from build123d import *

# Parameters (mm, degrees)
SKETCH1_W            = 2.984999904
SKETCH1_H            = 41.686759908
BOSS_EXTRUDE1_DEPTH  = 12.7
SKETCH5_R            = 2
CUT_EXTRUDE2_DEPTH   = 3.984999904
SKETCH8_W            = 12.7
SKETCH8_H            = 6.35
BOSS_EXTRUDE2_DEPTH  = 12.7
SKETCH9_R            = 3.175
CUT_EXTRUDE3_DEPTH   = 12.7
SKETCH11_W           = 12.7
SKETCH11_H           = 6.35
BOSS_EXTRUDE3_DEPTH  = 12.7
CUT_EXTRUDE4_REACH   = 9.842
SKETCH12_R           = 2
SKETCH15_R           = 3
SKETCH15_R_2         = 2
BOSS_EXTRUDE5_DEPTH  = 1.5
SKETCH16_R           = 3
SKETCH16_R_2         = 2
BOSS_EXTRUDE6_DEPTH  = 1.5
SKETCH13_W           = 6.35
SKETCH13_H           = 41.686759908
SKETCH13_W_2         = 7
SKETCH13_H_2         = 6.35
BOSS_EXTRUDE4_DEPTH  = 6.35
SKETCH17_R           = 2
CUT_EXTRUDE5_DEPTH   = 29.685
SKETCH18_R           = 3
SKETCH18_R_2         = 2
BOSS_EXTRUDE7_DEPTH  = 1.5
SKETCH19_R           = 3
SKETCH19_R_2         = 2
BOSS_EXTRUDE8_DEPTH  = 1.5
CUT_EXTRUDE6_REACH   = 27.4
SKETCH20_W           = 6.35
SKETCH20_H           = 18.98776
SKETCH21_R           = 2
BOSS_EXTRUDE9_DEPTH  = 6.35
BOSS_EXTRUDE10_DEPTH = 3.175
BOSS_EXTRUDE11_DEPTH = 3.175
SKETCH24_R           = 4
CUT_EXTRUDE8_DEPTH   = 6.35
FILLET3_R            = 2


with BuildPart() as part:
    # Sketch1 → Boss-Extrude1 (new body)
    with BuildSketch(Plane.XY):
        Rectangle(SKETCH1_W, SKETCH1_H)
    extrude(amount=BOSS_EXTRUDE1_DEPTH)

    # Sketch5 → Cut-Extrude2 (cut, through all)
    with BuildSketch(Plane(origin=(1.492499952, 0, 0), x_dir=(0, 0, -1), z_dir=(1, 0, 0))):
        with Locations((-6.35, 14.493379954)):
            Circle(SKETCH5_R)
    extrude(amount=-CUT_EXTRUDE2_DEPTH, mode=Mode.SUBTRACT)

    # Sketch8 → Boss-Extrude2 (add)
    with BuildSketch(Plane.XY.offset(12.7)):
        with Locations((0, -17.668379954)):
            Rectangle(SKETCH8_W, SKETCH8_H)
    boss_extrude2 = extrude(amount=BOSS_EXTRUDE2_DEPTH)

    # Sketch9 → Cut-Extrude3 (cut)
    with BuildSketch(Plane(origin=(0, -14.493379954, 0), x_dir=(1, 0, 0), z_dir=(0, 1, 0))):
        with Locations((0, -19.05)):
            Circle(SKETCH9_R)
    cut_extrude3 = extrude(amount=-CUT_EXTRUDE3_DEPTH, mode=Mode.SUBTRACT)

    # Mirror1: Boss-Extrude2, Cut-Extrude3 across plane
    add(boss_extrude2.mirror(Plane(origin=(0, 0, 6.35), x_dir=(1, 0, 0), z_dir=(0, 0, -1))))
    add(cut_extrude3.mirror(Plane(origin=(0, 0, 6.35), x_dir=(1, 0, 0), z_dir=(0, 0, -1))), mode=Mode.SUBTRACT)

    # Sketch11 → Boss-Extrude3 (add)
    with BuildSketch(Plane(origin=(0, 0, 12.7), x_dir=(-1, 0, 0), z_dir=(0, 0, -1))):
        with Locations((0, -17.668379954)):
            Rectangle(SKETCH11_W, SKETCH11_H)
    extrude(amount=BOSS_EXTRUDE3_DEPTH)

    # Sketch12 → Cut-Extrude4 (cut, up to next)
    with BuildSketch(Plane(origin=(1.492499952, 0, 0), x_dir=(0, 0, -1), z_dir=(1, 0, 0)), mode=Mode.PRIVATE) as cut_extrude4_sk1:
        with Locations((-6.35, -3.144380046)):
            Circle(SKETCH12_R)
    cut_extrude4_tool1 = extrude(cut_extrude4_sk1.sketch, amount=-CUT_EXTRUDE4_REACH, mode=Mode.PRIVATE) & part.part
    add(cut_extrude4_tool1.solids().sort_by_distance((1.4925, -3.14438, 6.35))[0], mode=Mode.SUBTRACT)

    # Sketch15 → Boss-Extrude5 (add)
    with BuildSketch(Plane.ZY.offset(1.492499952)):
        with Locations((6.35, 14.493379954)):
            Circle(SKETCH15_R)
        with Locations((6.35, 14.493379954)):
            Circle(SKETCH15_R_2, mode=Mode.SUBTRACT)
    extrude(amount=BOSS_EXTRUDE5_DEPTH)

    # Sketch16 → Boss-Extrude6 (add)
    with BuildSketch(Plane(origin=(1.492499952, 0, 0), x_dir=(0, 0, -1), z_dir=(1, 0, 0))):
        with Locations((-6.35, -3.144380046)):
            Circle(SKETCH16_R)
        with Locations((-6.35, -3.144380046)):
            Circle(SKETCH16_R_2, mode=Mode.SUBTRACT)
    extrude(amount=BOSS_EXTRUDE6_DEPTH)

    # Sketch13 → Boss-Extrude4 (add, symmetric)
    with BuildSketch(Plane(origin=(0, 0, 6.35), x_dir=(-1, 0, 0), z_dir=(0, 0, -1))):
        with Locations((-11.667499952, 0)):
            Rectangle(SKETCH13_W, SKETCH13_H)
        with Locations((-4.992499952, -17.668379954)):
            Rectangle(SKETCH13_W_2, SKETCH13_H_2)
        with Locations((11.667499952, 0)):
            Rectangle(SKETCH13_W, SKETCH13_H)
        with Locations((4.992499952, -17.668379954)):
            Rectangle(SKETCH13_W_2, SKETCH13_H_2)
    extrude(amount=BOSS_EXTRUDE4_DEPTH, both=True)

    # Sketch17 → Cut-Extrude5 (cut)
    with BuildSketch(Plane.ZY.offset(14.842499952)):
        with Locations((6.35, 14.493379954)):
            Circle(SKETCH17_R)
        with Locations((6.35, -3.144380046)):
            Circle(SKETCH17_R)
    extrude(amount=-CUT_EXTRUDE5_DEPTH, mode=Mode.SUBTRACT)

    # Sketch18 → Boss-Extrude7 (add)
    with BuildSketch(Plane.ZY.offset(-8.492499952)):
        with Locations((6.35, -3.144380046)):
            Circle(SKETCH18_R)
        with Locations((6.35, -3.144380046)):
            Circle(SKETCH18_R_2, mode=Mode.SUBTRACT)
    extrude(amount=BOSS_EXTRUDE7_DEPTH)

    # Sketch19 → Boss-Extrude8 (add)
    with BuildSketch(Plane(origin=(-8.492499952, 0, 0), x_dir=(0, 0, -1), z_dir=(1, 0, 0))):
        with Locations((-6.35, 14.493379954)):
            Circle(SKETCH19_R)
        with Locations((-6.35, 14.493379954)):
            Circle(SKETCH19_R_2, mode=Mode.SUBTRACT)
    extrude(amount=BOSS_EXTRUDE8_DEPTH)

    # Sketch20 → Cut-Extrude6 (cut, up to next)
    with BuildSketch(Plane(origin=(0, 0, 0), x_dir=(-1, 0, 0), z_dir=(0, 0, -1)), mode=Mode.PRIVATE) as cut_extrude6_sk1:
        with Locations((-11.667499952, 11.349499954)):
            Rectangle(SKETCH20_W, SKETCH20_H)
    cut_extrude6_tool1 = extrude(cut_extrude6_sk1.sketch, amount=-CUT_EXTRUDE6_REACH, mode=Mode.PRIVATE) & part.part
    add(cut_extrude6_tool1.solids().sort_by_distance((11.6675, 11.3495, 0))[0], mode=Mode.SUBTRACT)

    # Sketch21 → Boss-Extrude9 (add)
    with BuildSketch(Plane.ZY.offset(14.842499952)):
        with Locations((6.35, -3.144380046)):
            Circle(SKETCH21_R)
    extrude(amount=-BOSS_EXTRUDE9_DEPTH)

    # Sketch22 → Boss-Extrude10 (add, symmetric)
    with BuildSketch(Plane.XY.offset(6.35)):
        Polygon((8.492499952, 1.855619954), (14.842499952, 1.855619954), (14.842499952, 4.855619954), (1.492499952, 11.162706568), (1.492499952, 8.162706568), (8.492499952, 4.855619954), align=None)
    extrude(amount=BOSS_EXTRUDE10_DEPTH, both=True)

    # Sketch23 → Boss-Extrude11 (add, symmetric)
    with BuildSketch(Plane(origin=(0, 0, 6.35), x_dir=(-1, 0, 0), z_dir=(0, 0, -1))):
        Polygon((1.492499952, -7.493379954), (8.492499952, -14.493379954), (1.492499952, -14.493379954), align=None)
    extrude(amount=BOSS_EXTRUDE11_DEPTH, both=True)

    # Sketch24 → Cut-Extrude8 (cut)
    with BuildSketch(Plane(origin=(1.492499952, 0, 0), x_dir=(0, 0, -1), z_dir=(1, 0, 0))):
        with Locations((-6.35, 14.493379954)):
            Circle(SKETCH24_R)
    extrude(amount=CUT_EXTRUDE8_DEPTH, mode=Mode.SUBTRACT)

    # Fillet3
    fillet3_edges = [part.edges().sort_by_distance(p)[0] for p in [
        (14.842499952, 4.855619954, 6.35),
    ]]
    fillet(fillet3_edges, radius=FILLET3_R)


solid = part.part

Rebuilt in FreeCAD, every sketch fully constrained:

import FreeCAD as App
import Part
import Sketcher
Q = App.Units.Quantity


def edges_at(feature, points):
    """Names of the edges that pass closest to the given points."""
    edges = feature.Shape.Edges
    near = lambda p: min(range(len(edges)), key=lambda i: edges[i].distToShape(Part.Vertex(*p))[0])
    return sorted({f"Edge{near(p) + 1}" for p in points})


def add_polygon(sketch, points):
    """Adds a closed chain of lines whose ends are joined by coincident constraints."""
    first, n = sketch.GeometryCount, len(points)
    for a, b in zip(points, points[1:] + points[:1]):
        sketch.addGeometry(Part.LineSegment(App.Vector(*a, 0), App.Vector(*b, 0)), False)
    for i in range(n):
        sketch.addConstraint(Sketcher.Constraint("Coincident", first + i, 2, first + (i + 1) % n, 1))

doc = App.newDocument("Part")
body = doc.addObject("PartDesign::Body", "Body")

sketch1 = doc.addObject("Sketcher::SketchObject", "Sketch")
body.addObject(sketch1)
sketch1.AttachmentSupport = (doc.XY_Plane, [""])
sketch1.MapMode = "FlatFace"
add_polygon(sketch1, [(-1.5, 20.8), (-1.5, -20.8), (1.5, -20.8), (1.5, 20.8)])
sketch1.addConstraint(Sketcher.Constraint("Vertical", 0))
sketch1.addConstraint(Sketcher.Constraint("Horizontal", 1))
sketch1.addConstraint(Sketcher.Constraint("Vertical", 2))
sketch1.addConstraint(Sketcher.Constraint("Horizontal", 3))
sketch1.addConstraint(Sketcher.Constraint("Symmetric", 0, 2, 2, 2, -1, 1))
sketch1.addConstraint(Sketcher.Constraint("DistanceX", 1, 1, 1, 2, Q("2.985 mm")))
sketch1.addConstraint(Sketcher.Constraint("DistanceY", 0, 2, 0, 1, Q("41.68676 mm")))
pad1 = doc.addObject("PartDesign::Pad", "Pad")
body.addObject(pad1)
pad1.Profile = sketch1
pad1.Length = 12.7

sketch2 = doc.addObject("Sketcher::SketchObject", "Sketch001")
body.addObject(sketch2)
sketch2.AttachmentSupport = (doc.YZ_Plane, [""])
sketch2.MapMode = "FlatFace"
sketch2.AttachmentOffset = App.Placement(App.Vector(0, 0, 1.4925), App.Rotation())
sketch2.addGeometry(Part.Circle(App.Vector(14.5, 6.3, 0), App.Vector(0, 0, 1), 2), False)
sketch2.addConstraint(Sketcher.Constraint("Diameter", 0, Q("4 mm")))
sketch2.addConstraint(Sketcher.Constraint("DistanceY", -1, 1, 0, 3, Q("6.35 mm")))
sketch2.addConstraint(Sketcher.Constraint("DistanceX", -1, 1, 0, 3, Q("14.49338 mm")))
pocket1 = doc.addObject("PartDesign::Pocket", "Pocket")
body.addObject(pocket1)
pocket1.Profile = sketch2
pocket1.Type = "ThroughAll"

sketch3 = doc.addObject("Sketcher::SketchObject", "Sketch002")
body.addObject(sketch3)
sketch3.AttachmentSupport = (doc.XY_Plane, [""])
sketch3.MapMode = "FlatFace"
sketch3.AttachmentOffset = App.Placement(App.Vector(0, 0, 12.7), App.Rotation())
add_polygon(sketch3, [(-6, -14), (-6, -21), (6, -21), (6, -14)])
sketch3.addConstraint(Sketcher.Constraint("Vertical", 0))
sketch3.addConstraint(Sketcher.Constraint("Horizontal", 1))
sketch3.addConstraint(Sketcher.Constraint("Vertical", 2))
sketch3.addConstraint(Sketcher.Constraint("Horizontal", 3))
sketch3.addConstraint(Sketcher.Constraint("DistanceX", 1, 1, 1, 2, Q("12.7 mm")))
sketch3.addConstraint(Sketcher.Constraint("DistanceY", 0, 2, 0, 1, Q("6.35 mm")))
sketch3.addConstraint(Sketcher.Constraint("DistanceX", 0, 2, -1, 1, Q("6.35 mm")))
sketch3.addConstraint(Sketcher.Constraint("DistanceY", 0, 2, -1, 1, Q("20.84338 mm")))
pad2 = doc.addObject("PartDesign::Pad", "Pad001")
body.addObject(pad2)
pad2.Profile = sketch3
pad2.Length = 12.7

sketch4 = doc.addObject("Sketcher::SketchObject", "Sketch003")
body.addObject(sketch4)
sketch4.AttachmentSupport = (doc.XZ_Plane, [""])
sketch4.MapMode = "FlatFace"
sketch4.AttachmentOffset = App.Placement(App.Vector(0, 0, 14.49338), App.Rotation())
sketch4.addGeometry(Part.Circle(App.Vector(0, 19.1, 0), App.Vector(0, 0, 1), 3.2), False)
sketch4.addConstraint(Sketcher.Constraint("PointOnObject", 0, 3, -2))
sketch4.addConstraint(Sketcher.Constraint("Diameter", 0, Q("6.35 mm")))
sketch4.addConstraint(Sketcher.Constraint("DistanceY", -1, 1, 0, 3, Q("19.05 mm")))
pocket2 = doc.addObject("PartDesign::Pocket", "Pocket001")
body.addObject(pocket2)
pocket2.Profile = sketch4
pocket2.Length = 12.7
pocket2.Reversed = True
doc.recompute()

datumplane = doc.addObject("PartDesign::Plane", "DatumPlane")
body.addObject(datumplane)
datumplane.AttachmentSupport = (doc.XY_Plane, [""])
datumplane.MapMode = "FlatFace"
datumplane.AttachmentOffset = App.Placement(App.Vector(0, 0, 6.35), App.Rotation())
mirrored = doc.addObject("PartDesign::Mirrored", "Mirrored")
body.addObject(mirrored)
mirrored.Originals = [pad2, pocket2]
mirrored.MirrorPlane = (datumplane, [""])
body.Tip = mirrored

sketch5 = doc.addObject("Sketcher::SketchObject", "Sketch004")
body.addObject(sketch5)
sketch5.AttachmentSupport = (doc.XY_Plane, [""])
sketch5.MapMode = "FlatFace"
sketch5.AttachmentOffset = App.Placement(App.Vector(0, 0, 12.7), App.Rotation())
add_polygon(sketch5, [(6, -14), (6, -21), (-6, -21), (-6, -14)])
sketch5.addConstraint(Sketcher.Constraint("Vertical", 0))
sketch5.addConstraint(Sketcher.Constraint("Horizontal", 1))
sketch5.addConstraint(Sketcher.Constraint("Vertical", 2))
sketch5.addConstraint(Sketcher.Constraint("Horizontal", 3))
sketch5.addConstraint(Sketcher.Constraint("DistanceX", 1, 2, 1, 1, Q("12.7 mm")))
sketch5.addConstraint(Sketcher.Constraint("DistanceY", 0, 2, 0, 1, Q("6.35 mm")))
sketch5.addConstraint(Sketcher.Constraint("DistanceX", -1, 1, 0, 2, Q("6.35 mm")))
sketch5.addConstraint(Sketcher.Constraint("DistanceY", 0, 2, -1, 1, Q("20.84338 mm")))
pad3 = doc.addObject("PartDesign::Pad", "Pad002")
body.addObject(pad3)
pad3.Profile = sketch5
pad3.Length = 12.7
pad3.Reversed = True

sketch6 = doc.addObject("Sketcher::SketchObject", "Sketch005")
body.addObject(sketch6)
sketch6.AttachmentSupport = (doc.YZ_Plane, [""])
sketch6.MapMode = "FlatFace"
sketch6.AttachmentOffset = App.Placement(App.Vector(0, 0, 1.4925), App.Rotation())
sketch6.addGeometry(Part.Circle(App.Vector(-3.1, 6.3, 0), App.Vector(0, 0, 1), 2), False)
sketch6.addConstraint(Sketcher.Constraint("Diameter", 0, Q("4 mm")))
sketch6.addConstraint(Sketcher.Constraint("DistanceY", -1, 1, 0, 3, Q("6.35 mm")))
sketch6.addConstraint(Sketcher.Constraint("DistanceX", 0, 3, -1, 1, Q("3.14438 mm")))
pocket3 = doc.addObject("PartDesign::Pocket", "Pocket002")
body.addObject(pocket3)
pocket3.Profile = sketch6
pocket3.Type = "UpToFirst"

sketch7 = doc.addObject("Sketcher::SketchObject", "Sketch006")
body.addObject(sketch7)
sketch7.AttachmentSupport = (doc.YZ_Plane, [""])
sketch7.MapMode = "FlatFace"
sketch7.AttachmentOffset = App.Placement(App.Vector(0, 0, -1.4925), App.Rotation())
sketch7.addGeometry(Part.Circle(App.Vector(14.5, 6.3, 0), App.Vector(0, 0, 1), 3), False)
sketch7.addGeometry(Part.Circle(App.Vector(14.5, 6.3, 0), App.Vector(0, 0, 1), 2), False)
sketch7.addConstraint(Sketcher.Constraint("Coincident", 1, 3, 0, 3))
sketch7.addConstraint(Sketcher.Constraint("Diameter", 0, Q("6 mm")))
sketch7.addConstraint(Sketcher.Constraint("Diameter", 1, Q("4 mm")))
sketch7.addConstraint(Sketcher.Constraint("DistanceY", -1, 1, 0, 3, Q("6.35 mm")))
sketch7.addConstraint(Sketcher.Constraint("DistanceX", -1, 1, 0, 3, Q("14.49338 mm")))
pad4 = doc.addObject("PartDesign::Pad", "Pad003")
body.addObject(pad4)
pad4.Profile = sketch7
pad4.Length = 1.5
pad4.Reversed = True

sketch8 = doc.addObject("Sketcher::SketchObject", "Sketch007")
body.addObject(sketch8)
sketch8.AttachmentSupport = (doc.YZ_Plane, [""])
sketch8.MapMode = "FlatFace"
sketch8.AttachmentOffset = App.Placement(App.Vector(0, 0, 1.4925), App.Rotation())
sketch8.addGeometry(Part.Circle(App.Vector(-3.1, 6.3, 0), App.Vector(0, 0, 1), 3), False)
sketch8.addGeometry(Part.Circle(App.Vector(-3.1, 6.3, 0), App.Vector(0, 0, 1), 2), False)
sketch8.addConstraint(Sketcher.Constraint("Coincident", 1, 3, 0, 3))
sketch8.addConstraint(Sketcher.Constraint("Diameter", 0, Q("6 mm")))
sketch8.addConstraint(Sketcher.Constraint("Diameter", 1, Q("4 mm")))
sketch8.addConstraint(Sketcher.Constraint("DistanceY", -1, 1, 0, 3, Q("6.35 mm")))
sketch8.addConstraint(Sketcher.Constraint("DistanceX", 0, 3, -1, 1, Q("3.14438 mm")))
pad5 = doc.addObject("PartDesign::Pad", "Pad004")
body.addObject(pad5)
pad5.Profile = sketch8
pad5.Length = 1.5

sketch9 = doc.addObject("Sketcher::SketchObject", "Sketch008")
body.addObject(sketch9)
sketch9.AttachmentSupport = (doc.XY_Plane, [""])
sketch9.MapMode = "FlatFace"
sketch9.AttachmentOffset = App.Placement(App.Vector(0, 0, 6.35), App.Rotation())
add_polygon(sketch9, [(15, 21), (15, -21), (1, -21), (1, -14), (8, -14), (8, 21)])
add_polygon(sketch9, [(-8, 21), (-8, -14), (-1, -14), (-1, -21), (-15, -21), (-15, 21)])
sketch9.addConstraint(Sketcher.Constraint("Vertical", 0))
sketch9.addConstraint(Sketcher.Constraint("Horizontal", 1))
sketch9.addConstraint(Sketcher.Constraint("Vertical", 2))
sketch9.addConstraint(Sketcher.Constraint("Horizontal", 3))
sketch9.addConstraint(Sketcher.Constraint("Vertical", 4))
sketch9.addConstraint(Sketcher.Constraint("Horizontal", 5))
sketch9.addConstraint(Sketcher.Constraint("Vertical", 6))
sketch9.addConstraint(Sketcher.Constraint("Horizontal", 7))
sketch9.addConstraint(Sketcher.Constraint("Vertical", 8))
sketch9.addConstraint(Sketcher.Constraint("Horizontal", 9))
sketch9.addConstraint(Sketcher.Constraint("Vertical", 10))
sketch9.addConstraint(Sketcher.Constraint("Horizontal", 11))
sketch9.addConstraint(Sketcher.Constraint("Symmetric", 5, 2, 9, 2, -1, 1))
sketch9.addConstraint(Sketcher.Constraint("Symmetric", 3, 2, 6, 2, -2))
sketch9.addConstraint(Sketcher.Constraint("Symmetric", 1, 2, 8, 2, -2))
sketch9.addConstraint(Sketcher.Constraint("Horizontal", 5, 2, 10, 2))
sketch9.addConstraint(Sketcher.Constraint("Equal", 11, 2))
sketch9.addConstraint(Sketcher.Constraint("DistanceX", 3, 1, 3, 2, Q("7 mm")))
sketch9.addConstraint(Sketcher.Constraint("DistanceX", 1, 2, 1, 1, Q("13.35 mm")))
sketch9.addConstraint(Sketcher.Constraint("DistanceX", 6, 2, 2, 2, Q("9.985 mm")))
sketch9.addConstraint(Sketcher.Constraint("DistanceY", 0, 2, 0, 1, Q("41.68676 mm")))
pad6 = doc.addObject("PartDesign::Pad", "Pad005")
body.addObject(pad6)
pad6.Profile = sketch9
pad6.Length = 12.7
pad6.Midplane = True

sketch10 = doc.addObject("Sketcher::SketchObject", "Sketch009")
body.addObject(sketch10)
sketch10.AttachmentSupport = (doc.YZ_Plane, [""])
sketch10.MapMode = "FlatFace"
sketch10.AttachmentOffset = App.Placement(App.Vector(0, 0, -14.8425), App.Rotation())
sketch10.addGeometry(Part.Circle(App.Vector(14.5, 6.3, 0), App.Vector(0, 0, 1), 2), False)
sketch10.addGeometry(Part.Circle(App.Vector(-3.1, 6.3, 0), App.Vector(0, 0, 1), 2), False)
sketch10.addConstraint(Sketcher.Constraint("Equal", 0, 1))
sketch10.addConstraint(Sketcher.Constraint("Horizontal", 0, 3, 1, 3))
sketch10.addConstraint(Sketcher.Constraint("Diameter", 0, Q("4 mm")))
sketch10.addConstraint(Sketcher.Constraint("DistanceY", -1, 1, 0, 3, Q("6.35 mm")))
sketch10.addConstraint(Sketcher.Constraint("DistanceX", -1, 1, 0, 3, Q("14.49338 mm")))
sketch10.addConstraint(Sketcher.Constraint("DistanceX", 1, 3, -1, 1, Q("3.14438 mm")))
pocket4 = doc.addObject("PartDesign::Pocket", "Pocket003")
body.addObject(pocket4)
pocket4.Profile = sketch10
pocket4.Length = 29.685
pocket4.Reversed = True

sketch11 = doc.addObject("Sketcher::SketchObject", "Sketch010")
body.addObject(sketch11)
sketch11.AttachmentSupport = (doc.YZ_Plane, [""])
sketch11.MapMode = "FlatFace"
sketch11.AttachmentOffset = App.Placement(App.Vector(0, 0, 8.4925), App.Rotation())
sketch11.addGeometry(Part.Circle(App.Vector(-3.1, 6.3, 0), App.Vector(0, 0, 1), 3), False)
sketch11.addGeometry(Part.Circle(App.Vector(-3.1, 6.3, 0), App.Vector(0, 0, 1), 2), False)
sketch11.addConstraint(Sketcher.Constraint("Coincident", 1, 3, 0, 3))
sketch11.addConstraint(Sketcher.Constraint("Diameter", 0, Q("6 mm")))
sketch11.addConstraint(Sketcher.Constraint("Diameter", 1, Q("4 mm")))
sketch11.addConstraint(Sketcher.Constraint("DistanceY", -1, 1, 0, 3, Q("6.35 mm")))
sketch11.addConstraint(Sketcher.Constraint("DistanceX", 0, 3, -1, 1, Q("3.14438 mm")))
pad7 = doc.addObject("PartDesign::Pad", "Pad006")
body.addObject(pad7)
pad7.Profile = sketch11
pad7.Length = 1.5
pad7.Reversed = True

sketch12 = doc.addObject("Sketcher::SketchObject", "Sketch011")
body.addObject(sketch12)
sketch12.AttachmentSupport = (doc.YZ_Plane, [""])
sketch12.MapMode = "FlatFace"
sketch12.AttachmentOffset = App.Placement(App.Vector(0, 0, -8.4925), App.Rotation())
sketch12.addGeometry(Part.Circle(App.Vector(14.5, 6.3, 0), App.Vector(0, 0, 1), 3), False)
sketch12.addGeometry(Part.Circle(App.Vector(14.5, 6.3, 0), App.Vector(0, 0, 1), 2), False)
sketch12.addConstraint(Sketcher.Constraint("Coincident", 1, 3, 0, 3))
sketch12.addConstraint(Sketcher.Constraint("Diameter", 0, Q("6 mm")))
sketch12.addConstraint(Sketcher.Constraint("Diameter", 1, Q("4 mm")))
sketch12.addConstraint(Sketcher.Constraint("DistanceY", -1, 1, 0, 3, Q("6.35 mm")))
sketch12.addConstraint(Sketcher.Constraint("DistanceX", -1, 1, 0, 3, Q("14.49338 mm")))
pad8 = doc.addObject("PartDesign::Pad", "Pad007")
body.addObject(pad8)
pad8.Profile = sketch12
pad8.Length = 1.5

sketch13 = doc.addObject("Sketcher::SketchObject", "Sketch012")
body.addObject(sketch13)
sketch13.AttachmentSupport = (doc.XY_Plane, [""])
sketch13.MapMode = "FlatFace"
add_polygon(sketch13, [(15, 21), (15, 2), (8, 2), (8, 21)])
sketch13.addConstraint(Sketcher.Constraint("Vertical", 0))
sketch13.addConstraint(Sketcher.Constraint("Horizontal", 1))
sketch13.addConstraint(Sketcher.Constraint("Vertical", 2))
sketch13.addConstraint(Sketcher.Constraint("Horizontal", 3))
sketch13.addConstraint(Sketcher.Constraint("DistanceX", 1, 2, 1, 1, Q("6.35 mm")))
sketch13.addConstraint(Sketcher.Constraint("DistanceY", 0, 2, 0, 1, Q("18.98776 mm")))
sketch13.addConstraint(Sketcher.Constraint("DistanceX", -1, 1, 0, 2, Q("14.8425 mm")))
sketch13.addConstraint(Sketcher.Constraint("DistanceY", -1, 1, 0, 2, Q("1.85562 mm")))
pocket5 = doc.addObject("PartDesign::Pocket", "Pocket004")
body.addObject(pocket5)
pocket5.Profile = sketch13
pocket5.Type = "UpToFirst"
pocket5.Reversed = True

sketch14 = doc.addObject("Sketcher::SketchObject", "Sketch013")
body.addObject(sketch14)
sketch14.AttachmentSupport = (doc.YZ_Plane, [""])
sketch14.MapMode = "FlatFace"
sketch14.AttachmentOffset = App.Placement(App.Vector(0, 0, -14.8425), App.Rotation())
sketch14.addGeometry(Part.Circle(App.Vector(-3.1, 6.3, 0), App.Vector(0, 0, 1), 2), False)
sketch14.addConstraint(Sketcher.Constraint("Diameter", 0, Q("4 mm")))
sketch14.addConstraint(Sketcher.Constraint("DistanceY", -1, 1, 0, 3, Q("6.35 mm")))
sketch14.addConstraint(Sketcher.Constraint("DistanceX", 0, 3, -1, 1, Q("3.14438 mm")))
pad9 = doc.addObject("PartDesign::Pad", "Pad008")
body.addObject(pad9)
pad9.Profile = sketch14
pad9.Length = 6.35

sketch15 = doc.addObject("Sketcher::SketchObject", "Sketch014")
body.addObject(sketch15)
sketch15.AttachmentSupport = (doc.XY_Plane, [""])
sketch15.MapMode = "FlatFace"
sketch15.AttachmentOffset = App.Placement(App.Vector(0, 0, 6.35), App.Rotation())
add_polygon(sketch15, [(8.5, 1.9), (14.8, 1.9), (14.8, 4.9), (1.5, 11.2), (1.5, 8.2), (8.5, 4.9)])
sketch15.addConstraint(Sketcher.Constraint("Horizontal", 0))
sketch15.addConstraint(Sketcher.Constraint("Vertical", 1))
sketch15.addConstraint(Sketcher.Constraint("Vertical", 3))
sketch15.addConstraint(Sketcher.Constraint("Vertical", 5))
sketch15.addConstraint(Sketcher.Constraint("Parallel", 2, 4))
sketch15.addConstraint(Sketcher.Constraint("Horizontal", 1, 2, 4, 2))
sketch15.addConstraint(Sketcher.Constraint("Equal", 1, 3))
sketch15.addConstraint(Sketcher.Constraint("DistanceY", 1, 1, 1, 2, Q("3 mm")))
sketch15.addConstraint(Sketcher.Constraint("DistanceX", 3, 2, 4, 2, Q("7 mm")))
sketch15.addConstraint(Sketcher.Constraint("DistanceX", 0, 1, 0, 2, Q("6.35 mm")))
sketch15.addConstraint(Sketcher.Constraint("DistanceX", -1, 1, 0, 2, Q("14.8425 mm")))
sketch15.addConstraint(Sketcher.Constraint("DistanceY", -1, 1, 0, 2, Q("1.85562 mm")))
pad10 = doc.addObject("PartDesign::Pad", "Pad009")
body.addObject(pad10)
pad10.Profile = sketch15
pad10.Length = 6.35
pad10.Midplane = True

sketch16 = doc.addObject("Sketcher::SketchObject", "Sketch015")
body.addObject(sketch16)
sketch16.AttachmentSupport = (doc.XY_Plane, [""])
sketch16.MapMode = "FlatFace"
sketch16.AttachmentOffset = App.Placement(App.Vector(0, 0, 6.35), App.Rotation())
add_polygon(sketch16, [(-8, -14), (-1, -7), (-1, -14)])
sketch16.addConstraint(Sketcher.Constraint("Vertical", 1))
sketch16.addConstraint(Sketcher.Constraint("Horizontal", 2))
sketch16.addConstraint(Sketcher.Constraint("Equal", 2, 1))
sketch16.addConstraint(Sketcher.Constraint("DistanceX", 2, 2, 2, 1, Q("7 mm")))
sketch16.addConstraint(Sketcher.Constraint("DistanceX", 0, 2, -1, 1, Q("1.4925 mm")))
sketch16.addConstraint(Sketcher.Constraint("DistanceY", 0, 2, -1, 1, Q("7.49338 mm")))
pad11 = doc.addObject("PartDesign::Pad", "Pad010")
body.addObject(pad11)
pad11.Profile = sketch16
pad11.Length = 6.35
pad11.Midplane = True

sketch17 = doc.addObject("Sketcher::SketchObject", "Sketch016")
body.addObject(sketch17)
sketch17.AttachmentSupport = (doc.YZ_Plane, [""])
sketch17.MapMode = "FlatFace"
sketch17.AttachmentOffset = App.Placement(App.Vector(0, 0, 1.4925), App.Rotation())
sketch17.addGeometry(Part.Circle(App.Vector(14.5, 6.3, 0), App.Vector(0, 0, 1), 4), False)
sketch17.addConstraint(Sketcher.Constraint("Diameter", 0, Q("8 mm")))
sketch17.addConstraint(Sketcher.Constraint("DistanceY", -1, 1, 0, 3, Q("6.35 mm")))
sketch17.addConstraint(Sketcher.Constraint("DistanceX", -1, 1, 0, 3, Q("14.49338 mm")))
pocket6 = doc.addObject("PartDesign::Pocket", "Pocket005")
body.addObject(pocket6)
pocket6.Profile = sketch17
pocket6.Length = 6.35
pocket6.Reversed = True
doc.recompute()

fillet = doc.addObject("PartDesign::Fillet", "Fillet")
body.addObject(fillet)
fillet.Base = (pocket6, edges_at(pocket6, [(14.842, 4.856, 6.35)]))
fillet.Radius = 2

doc.recompute()
